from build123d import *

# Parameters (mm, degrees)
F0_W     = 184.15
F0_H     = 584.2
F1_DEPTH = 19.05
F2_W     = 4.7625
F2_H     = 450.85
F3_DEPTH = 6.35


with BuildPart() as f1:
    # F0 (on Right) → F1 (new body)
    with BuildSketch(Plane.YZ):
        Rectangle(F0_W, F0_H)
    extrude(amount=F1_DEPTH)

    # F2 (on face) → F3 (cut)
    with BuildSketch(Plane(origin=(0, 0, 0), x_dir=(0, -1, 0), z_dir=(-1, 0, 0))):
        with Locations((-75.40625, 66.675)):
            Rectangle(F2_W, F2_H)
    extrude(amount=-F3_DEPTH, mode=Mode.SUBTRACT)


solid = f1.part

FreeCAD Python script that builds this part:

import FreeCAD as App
import Part
import Sketcher
from FreeCAD import Vector
Q = App.Units.Quantity


def add_polygon(sketch, points):
    """Adds a closed chain of lines whose ends are joined by coincident constraints."""
    first, n = sketch.GeometryCount, len(points)
    for a, b in zip(points, points[1:] + points[:1]):
        sketch.addGeometry(Part.LineSegment(App.Vector(*a, 0), App.Vector(*b, 0)), False)
    for i in range(n):
        sketch.addConstraint(Sketcher.Constraint("Coincident", first + i, 2, first + (i + 1) % n, 1))

doc = App.newDocument("Part")
body = doc.addObject("PartDesign::Body", "Body")

# Sketch on YZ plane
sketch1 = body.newObject("Sketcher::SketchObject", "Sketch")
sketch1.AttachmentSupport = (doc.getObject("YZ_Plane"), [""])
sketch1.MapMode = "FlatFace"
add_polygon(sketch1, [(-92.075, 292.1), (-92.075, -292.1), (92.075, -292.1), (92.075, 292.1)])  # lines 0-3
sketch1.addConstraint(Sketcher.Constraint("Vertical", 0))
sketch1.addConstraint(Sketcher.Constraint("Horizontal", 1))
sketch1.addConstraint(Sketcher.Constraint("Vertical", 2))
sketch1.addConstraint(Sketcher.Constraint("Horizontal", 3))
sketch1.addConstraint(Sketcher.Constraint("Symmetric", 0, 2, 2, 2, -1, 1))
sketch1.addConstraint(Sketcher.Constraint("DistanceY", 0, 2, 0, 1, Q("23 in")))
sketch1.addConstraint(Sketcher.Constraint("DistanceX", 1, 1, 1, 2, Q("7.25 in")))
pad1 = body.newObject("PartDesign::Pad", "Pad")
pad1.Profile = sketch1
pad1.Length = Q("0.75 in")

# Sketch on YZ plane
sketch2 = body.newObject("Sketcher::SketchObject", "Sketch001")
sketch2.AttachmentSupport = (doc.getObject("YZ_Plane"), [""])
sketch2.MapMode = "FlatFace"
add_polygon(sketch2, [(77.7875, 292.1), (77.7875, -158.75), (73.025, -158.75), (73.025, 292.1)])  # lines 0-3
sketch2.addConstraint(Sketcher.Constraint("Vertical", 0))
sketch2.addConstraint(Sketcher.Constraint("Horizontal", 1))
sketch2.addConstraint(Sketcher.Constraint("Vertical", 2))
sketch2.addConstraint(Sketcher.Constraint("Horizontal", 3))
sketch2.addConstraint(Sketcher.Constraint("DistanceY", 0, 2, 0, 1, Q("17.75 in")))
sketch2.addConstraint(Sketcher.Constraint("DistanceY", -1, 1, 2, 2, Q("11.5 in")))
sketch2.addConstraint(Sketcher.Constraint("DistanceX", 1, 2, 1, 1, Q("0.1875 in")))
sketch2.addConstraint(Sketcher.Constraint("DistanceX", -1, 1, 0, 2, Q("3.0625 in")))
pocket1 = body.newObject("PartDesign::Pocket", "Pocket")
pocket1.Profile = sketch2
pocket1.Length = Q("0.25 in")
pocket1.Reversed = True

doc.recompute()
